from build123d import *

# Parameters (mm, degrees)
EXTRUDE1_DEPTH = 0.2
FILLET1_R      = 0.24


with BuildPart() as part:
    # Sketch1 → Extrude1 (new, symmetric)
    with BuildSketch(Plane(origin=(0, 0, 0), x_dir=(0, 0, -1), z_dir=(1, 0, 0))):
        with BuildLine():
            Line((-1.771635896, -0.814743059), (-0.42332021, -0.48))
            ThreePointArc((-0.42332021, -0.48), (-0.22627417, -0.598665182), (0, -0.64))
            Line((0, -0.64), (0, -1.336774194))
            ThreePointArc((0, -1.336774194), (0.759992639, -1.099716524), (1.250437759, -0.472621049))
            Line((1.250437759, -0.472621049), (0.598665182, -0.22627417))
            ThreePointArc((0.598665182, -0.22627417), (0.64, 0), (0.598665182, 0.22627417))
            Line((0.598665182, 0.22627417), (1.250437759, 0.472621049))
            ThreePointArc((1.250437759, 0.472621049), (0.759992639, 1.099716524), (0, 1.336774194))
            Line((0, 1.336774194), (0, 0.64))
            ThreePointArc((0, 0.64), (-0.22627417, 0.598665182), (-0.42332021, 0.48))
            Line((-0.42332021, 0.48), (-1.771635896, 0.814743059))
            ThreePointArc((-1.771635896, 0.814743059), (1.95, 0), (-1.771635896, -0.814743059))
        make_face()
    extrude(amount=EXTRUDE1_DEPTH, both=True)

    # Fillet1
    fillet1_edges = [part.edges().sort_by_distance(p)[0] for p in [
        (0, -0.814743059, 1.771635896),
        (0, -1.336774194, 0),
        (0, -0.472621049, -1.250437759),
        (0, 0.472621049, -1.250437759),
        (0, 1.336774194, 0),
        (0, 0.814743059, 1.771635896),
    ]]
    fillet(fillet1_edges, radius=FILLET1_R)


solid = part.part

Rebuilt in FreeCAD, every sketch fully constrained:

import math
import FreeCAD as App
import Part
import Sketcher

V = App.Vector


def edges_at(feature, points):
    """Names of the edges that pass closest to the given points."""
    edges = feature.Shape.Edges
    near = lambda p: min(range(len(edges)), key=lambda i: edges[i].distToShape(Part.Vertex(*p))[0])
    return sorted({f"Edge{near(p) + 1}" for p in points})

doc = App.newDocument("Part")
body = doc.addObject("PartDesign::Body", "Body")

# Sketch on YZ plane
sketch1 = doc.addObject("Sketcher::SketchObject", "Sketch")
body.addObject(sketch1)
sketch1.AttachmentSupport = (doc.YZ_Plane, [""])
sketch1.MapMode = "FlatFace"
sketch1.addGeometry([
    Part.LineSegment(V(-0.48, 0.42332, 0), V(-0.814743, 1.771636, 0)),  # 0
    Part.ArcOfCircle(Part.Circle(V(0, 0, 0), V(0, 0, 1), 1.95), math.radians(114.696839), math.radians(425.303161)),  # 1
    Part.LineSegment(V(0.814743, 1.771636, 0), V(0.48, 0.42332, 0)),  # 2
    Part.ArcOfCircle(Part.Circle(V(0, 0, 0), V(0, 0, 1), 0.64), math.radians(0), math.radians(41.409622)),  # 3
    Part.LineSegment(V(0.64, 0, 0), V(1.336774, 0, 0)),  # 4
    Part.ArcOfCircle(Part.Circle(V(0, 0, 0), V(0, 0, 1), 1.336774), math.radians(-69.295189), math.radians(0)),  # 5
    Part.LineSegment(V(0.472621, -1.250438, 0), V(0.226274, -0.598665, 0)),  # 6
    Part.ArcOfCircle(Part.Circle(V(0, 0, 0), V(0, 0, 1), 0.64), math.radians(-110.704811), math.radians(-69.295189)),  # 7
    Part.LineSegment(V(-0.226274, -0.598665, 0), V(-0.472621, -1.250438, 0)),  # 8
    Part.ArcOfCircle(Part.Circle(V(0, 0, 0), V(0, 0, 1), 1.336774), math.radians(-180), math.radians(-110.704811)),  # 9
    Part.LineSegment(V(-1.336774, 0, 0), V(-0.64, 0, 0)),  # 10
    Part.ArcOfCircle(Part.Circle(V(0, 0, 0), V(0, 0, 1), 0.64), math.radians(138.590378), math.radians(180)),  # 11
], False)
sketch1.addConstraint([
    Sketcher.Constraint("Coincident", 0, 2, 1, 1),
    Sketcher.Constraint("Coincident", 1, 2, 2, 1),
    Sketcher.Constraint("Coincident", 2, 2, 3, 2),
    Sketcher.Constraint("Coincident", 3, 1, 4, 1),
    Sketcher.Constraint("Coincident", 4, 2, 5, 2),
    Sketcher.Constraint("Coincident", 5, 1, 6, 1),
    Sketcher.Constraint("Coincident", 6, 2, 7, 2),
    Sketcher.Constraint("Coincident", 7, 1, 8, 1),
    Sketcher.Constraint("Coincident", 8, 2, 9, 2),
    Sketcher.Constraint("Coincident", 9, 1, 10, 1),
    Sketcher.Constraint("Coincident", 10, 2, 11, 2),
    Sketcher.Constraint("Coincident", 11, 1, 0, 1),
    Sketcher.Constraint("Horizontal", 4),
    Sketcher.Constraint("Horizontal", 10),
    Sketcher.Constraint("Coincident", 1, 3, -1, 1),
    Sketcher.Constraint("Coincident", 3, 3, -1, 1),
    Sketcher.Constraint("Coincident", 5, 3, -1, 1),
    Sketcher.Constraint("Coincident", 7, 3, -1, 1),
    Sketcher.Constraint("Coincident", 9, 3, -1, 1),
    Sketcher.Constraint("Coincident", 11, 3, -1, 1),
    Sketcher.Constraint("Equal", 3, 7),
    Sketcher.Constraint("Equal", 5, 9),
    Sketcher.Constraint("Equal", 7, 11),
    Sketcher.Constraint("PointOnObject", 3, 1, -1),
    Sketcher.Constraint("PointOnObject", 9, 1, -1),
    Sketcher.Constraint("Horizontal", 0, 2, 1, 2),
    Sketcher.Constraint("Horizontal", 6, 2, 7, 1),
    Sketcher.Constraint("Horizontal", 5, 1, 8, 2),
    Sketcher.Constraint("Horizontal", 2, 2, 11, 1),
    Sketcher.Constraint("Radius", 1, 1.95),
    Sketcher.Constraint("Radius", 3, 0.64),
    Sketcher.Constraint("DistanceX", -1, 1, 2, 2, 0.48),
    Sketcher.Constraint("Radius", 5, 1.336774),
    Sketcher.Constraint("DistanceX", 9, 1, 7, 1, 1.1105),
    Sketcher.Constraint("DistanceX", -1, 1, 5, 1, 0.472621),
    Sketcher.Constraint("Distance", 0, 1.389247),
])
pad1 = doc.addObject("PartDesign::Pad", "Pad")
body.addObject(pad1)
pad1.Profile = sketch1
pad1.Length = 0.4
pad1.Midplane = True
doc.recompute()

fillet = doc.addObject("PartDesign::Fillet", "Fillet")
body.addObject(fillet)
fillet.Base = (pad1, edges_at(pad1, [
    (0, -0.815, 1.772),
    (0, -1.337, 0),
    (0, -0.473, -1.25),
    (0, 0.473, -1.25),
    (0, 1.337, 0),
    (0, 0.815, 1.772),
]))
fillet.Radius = 0.24

doc.recompute()
